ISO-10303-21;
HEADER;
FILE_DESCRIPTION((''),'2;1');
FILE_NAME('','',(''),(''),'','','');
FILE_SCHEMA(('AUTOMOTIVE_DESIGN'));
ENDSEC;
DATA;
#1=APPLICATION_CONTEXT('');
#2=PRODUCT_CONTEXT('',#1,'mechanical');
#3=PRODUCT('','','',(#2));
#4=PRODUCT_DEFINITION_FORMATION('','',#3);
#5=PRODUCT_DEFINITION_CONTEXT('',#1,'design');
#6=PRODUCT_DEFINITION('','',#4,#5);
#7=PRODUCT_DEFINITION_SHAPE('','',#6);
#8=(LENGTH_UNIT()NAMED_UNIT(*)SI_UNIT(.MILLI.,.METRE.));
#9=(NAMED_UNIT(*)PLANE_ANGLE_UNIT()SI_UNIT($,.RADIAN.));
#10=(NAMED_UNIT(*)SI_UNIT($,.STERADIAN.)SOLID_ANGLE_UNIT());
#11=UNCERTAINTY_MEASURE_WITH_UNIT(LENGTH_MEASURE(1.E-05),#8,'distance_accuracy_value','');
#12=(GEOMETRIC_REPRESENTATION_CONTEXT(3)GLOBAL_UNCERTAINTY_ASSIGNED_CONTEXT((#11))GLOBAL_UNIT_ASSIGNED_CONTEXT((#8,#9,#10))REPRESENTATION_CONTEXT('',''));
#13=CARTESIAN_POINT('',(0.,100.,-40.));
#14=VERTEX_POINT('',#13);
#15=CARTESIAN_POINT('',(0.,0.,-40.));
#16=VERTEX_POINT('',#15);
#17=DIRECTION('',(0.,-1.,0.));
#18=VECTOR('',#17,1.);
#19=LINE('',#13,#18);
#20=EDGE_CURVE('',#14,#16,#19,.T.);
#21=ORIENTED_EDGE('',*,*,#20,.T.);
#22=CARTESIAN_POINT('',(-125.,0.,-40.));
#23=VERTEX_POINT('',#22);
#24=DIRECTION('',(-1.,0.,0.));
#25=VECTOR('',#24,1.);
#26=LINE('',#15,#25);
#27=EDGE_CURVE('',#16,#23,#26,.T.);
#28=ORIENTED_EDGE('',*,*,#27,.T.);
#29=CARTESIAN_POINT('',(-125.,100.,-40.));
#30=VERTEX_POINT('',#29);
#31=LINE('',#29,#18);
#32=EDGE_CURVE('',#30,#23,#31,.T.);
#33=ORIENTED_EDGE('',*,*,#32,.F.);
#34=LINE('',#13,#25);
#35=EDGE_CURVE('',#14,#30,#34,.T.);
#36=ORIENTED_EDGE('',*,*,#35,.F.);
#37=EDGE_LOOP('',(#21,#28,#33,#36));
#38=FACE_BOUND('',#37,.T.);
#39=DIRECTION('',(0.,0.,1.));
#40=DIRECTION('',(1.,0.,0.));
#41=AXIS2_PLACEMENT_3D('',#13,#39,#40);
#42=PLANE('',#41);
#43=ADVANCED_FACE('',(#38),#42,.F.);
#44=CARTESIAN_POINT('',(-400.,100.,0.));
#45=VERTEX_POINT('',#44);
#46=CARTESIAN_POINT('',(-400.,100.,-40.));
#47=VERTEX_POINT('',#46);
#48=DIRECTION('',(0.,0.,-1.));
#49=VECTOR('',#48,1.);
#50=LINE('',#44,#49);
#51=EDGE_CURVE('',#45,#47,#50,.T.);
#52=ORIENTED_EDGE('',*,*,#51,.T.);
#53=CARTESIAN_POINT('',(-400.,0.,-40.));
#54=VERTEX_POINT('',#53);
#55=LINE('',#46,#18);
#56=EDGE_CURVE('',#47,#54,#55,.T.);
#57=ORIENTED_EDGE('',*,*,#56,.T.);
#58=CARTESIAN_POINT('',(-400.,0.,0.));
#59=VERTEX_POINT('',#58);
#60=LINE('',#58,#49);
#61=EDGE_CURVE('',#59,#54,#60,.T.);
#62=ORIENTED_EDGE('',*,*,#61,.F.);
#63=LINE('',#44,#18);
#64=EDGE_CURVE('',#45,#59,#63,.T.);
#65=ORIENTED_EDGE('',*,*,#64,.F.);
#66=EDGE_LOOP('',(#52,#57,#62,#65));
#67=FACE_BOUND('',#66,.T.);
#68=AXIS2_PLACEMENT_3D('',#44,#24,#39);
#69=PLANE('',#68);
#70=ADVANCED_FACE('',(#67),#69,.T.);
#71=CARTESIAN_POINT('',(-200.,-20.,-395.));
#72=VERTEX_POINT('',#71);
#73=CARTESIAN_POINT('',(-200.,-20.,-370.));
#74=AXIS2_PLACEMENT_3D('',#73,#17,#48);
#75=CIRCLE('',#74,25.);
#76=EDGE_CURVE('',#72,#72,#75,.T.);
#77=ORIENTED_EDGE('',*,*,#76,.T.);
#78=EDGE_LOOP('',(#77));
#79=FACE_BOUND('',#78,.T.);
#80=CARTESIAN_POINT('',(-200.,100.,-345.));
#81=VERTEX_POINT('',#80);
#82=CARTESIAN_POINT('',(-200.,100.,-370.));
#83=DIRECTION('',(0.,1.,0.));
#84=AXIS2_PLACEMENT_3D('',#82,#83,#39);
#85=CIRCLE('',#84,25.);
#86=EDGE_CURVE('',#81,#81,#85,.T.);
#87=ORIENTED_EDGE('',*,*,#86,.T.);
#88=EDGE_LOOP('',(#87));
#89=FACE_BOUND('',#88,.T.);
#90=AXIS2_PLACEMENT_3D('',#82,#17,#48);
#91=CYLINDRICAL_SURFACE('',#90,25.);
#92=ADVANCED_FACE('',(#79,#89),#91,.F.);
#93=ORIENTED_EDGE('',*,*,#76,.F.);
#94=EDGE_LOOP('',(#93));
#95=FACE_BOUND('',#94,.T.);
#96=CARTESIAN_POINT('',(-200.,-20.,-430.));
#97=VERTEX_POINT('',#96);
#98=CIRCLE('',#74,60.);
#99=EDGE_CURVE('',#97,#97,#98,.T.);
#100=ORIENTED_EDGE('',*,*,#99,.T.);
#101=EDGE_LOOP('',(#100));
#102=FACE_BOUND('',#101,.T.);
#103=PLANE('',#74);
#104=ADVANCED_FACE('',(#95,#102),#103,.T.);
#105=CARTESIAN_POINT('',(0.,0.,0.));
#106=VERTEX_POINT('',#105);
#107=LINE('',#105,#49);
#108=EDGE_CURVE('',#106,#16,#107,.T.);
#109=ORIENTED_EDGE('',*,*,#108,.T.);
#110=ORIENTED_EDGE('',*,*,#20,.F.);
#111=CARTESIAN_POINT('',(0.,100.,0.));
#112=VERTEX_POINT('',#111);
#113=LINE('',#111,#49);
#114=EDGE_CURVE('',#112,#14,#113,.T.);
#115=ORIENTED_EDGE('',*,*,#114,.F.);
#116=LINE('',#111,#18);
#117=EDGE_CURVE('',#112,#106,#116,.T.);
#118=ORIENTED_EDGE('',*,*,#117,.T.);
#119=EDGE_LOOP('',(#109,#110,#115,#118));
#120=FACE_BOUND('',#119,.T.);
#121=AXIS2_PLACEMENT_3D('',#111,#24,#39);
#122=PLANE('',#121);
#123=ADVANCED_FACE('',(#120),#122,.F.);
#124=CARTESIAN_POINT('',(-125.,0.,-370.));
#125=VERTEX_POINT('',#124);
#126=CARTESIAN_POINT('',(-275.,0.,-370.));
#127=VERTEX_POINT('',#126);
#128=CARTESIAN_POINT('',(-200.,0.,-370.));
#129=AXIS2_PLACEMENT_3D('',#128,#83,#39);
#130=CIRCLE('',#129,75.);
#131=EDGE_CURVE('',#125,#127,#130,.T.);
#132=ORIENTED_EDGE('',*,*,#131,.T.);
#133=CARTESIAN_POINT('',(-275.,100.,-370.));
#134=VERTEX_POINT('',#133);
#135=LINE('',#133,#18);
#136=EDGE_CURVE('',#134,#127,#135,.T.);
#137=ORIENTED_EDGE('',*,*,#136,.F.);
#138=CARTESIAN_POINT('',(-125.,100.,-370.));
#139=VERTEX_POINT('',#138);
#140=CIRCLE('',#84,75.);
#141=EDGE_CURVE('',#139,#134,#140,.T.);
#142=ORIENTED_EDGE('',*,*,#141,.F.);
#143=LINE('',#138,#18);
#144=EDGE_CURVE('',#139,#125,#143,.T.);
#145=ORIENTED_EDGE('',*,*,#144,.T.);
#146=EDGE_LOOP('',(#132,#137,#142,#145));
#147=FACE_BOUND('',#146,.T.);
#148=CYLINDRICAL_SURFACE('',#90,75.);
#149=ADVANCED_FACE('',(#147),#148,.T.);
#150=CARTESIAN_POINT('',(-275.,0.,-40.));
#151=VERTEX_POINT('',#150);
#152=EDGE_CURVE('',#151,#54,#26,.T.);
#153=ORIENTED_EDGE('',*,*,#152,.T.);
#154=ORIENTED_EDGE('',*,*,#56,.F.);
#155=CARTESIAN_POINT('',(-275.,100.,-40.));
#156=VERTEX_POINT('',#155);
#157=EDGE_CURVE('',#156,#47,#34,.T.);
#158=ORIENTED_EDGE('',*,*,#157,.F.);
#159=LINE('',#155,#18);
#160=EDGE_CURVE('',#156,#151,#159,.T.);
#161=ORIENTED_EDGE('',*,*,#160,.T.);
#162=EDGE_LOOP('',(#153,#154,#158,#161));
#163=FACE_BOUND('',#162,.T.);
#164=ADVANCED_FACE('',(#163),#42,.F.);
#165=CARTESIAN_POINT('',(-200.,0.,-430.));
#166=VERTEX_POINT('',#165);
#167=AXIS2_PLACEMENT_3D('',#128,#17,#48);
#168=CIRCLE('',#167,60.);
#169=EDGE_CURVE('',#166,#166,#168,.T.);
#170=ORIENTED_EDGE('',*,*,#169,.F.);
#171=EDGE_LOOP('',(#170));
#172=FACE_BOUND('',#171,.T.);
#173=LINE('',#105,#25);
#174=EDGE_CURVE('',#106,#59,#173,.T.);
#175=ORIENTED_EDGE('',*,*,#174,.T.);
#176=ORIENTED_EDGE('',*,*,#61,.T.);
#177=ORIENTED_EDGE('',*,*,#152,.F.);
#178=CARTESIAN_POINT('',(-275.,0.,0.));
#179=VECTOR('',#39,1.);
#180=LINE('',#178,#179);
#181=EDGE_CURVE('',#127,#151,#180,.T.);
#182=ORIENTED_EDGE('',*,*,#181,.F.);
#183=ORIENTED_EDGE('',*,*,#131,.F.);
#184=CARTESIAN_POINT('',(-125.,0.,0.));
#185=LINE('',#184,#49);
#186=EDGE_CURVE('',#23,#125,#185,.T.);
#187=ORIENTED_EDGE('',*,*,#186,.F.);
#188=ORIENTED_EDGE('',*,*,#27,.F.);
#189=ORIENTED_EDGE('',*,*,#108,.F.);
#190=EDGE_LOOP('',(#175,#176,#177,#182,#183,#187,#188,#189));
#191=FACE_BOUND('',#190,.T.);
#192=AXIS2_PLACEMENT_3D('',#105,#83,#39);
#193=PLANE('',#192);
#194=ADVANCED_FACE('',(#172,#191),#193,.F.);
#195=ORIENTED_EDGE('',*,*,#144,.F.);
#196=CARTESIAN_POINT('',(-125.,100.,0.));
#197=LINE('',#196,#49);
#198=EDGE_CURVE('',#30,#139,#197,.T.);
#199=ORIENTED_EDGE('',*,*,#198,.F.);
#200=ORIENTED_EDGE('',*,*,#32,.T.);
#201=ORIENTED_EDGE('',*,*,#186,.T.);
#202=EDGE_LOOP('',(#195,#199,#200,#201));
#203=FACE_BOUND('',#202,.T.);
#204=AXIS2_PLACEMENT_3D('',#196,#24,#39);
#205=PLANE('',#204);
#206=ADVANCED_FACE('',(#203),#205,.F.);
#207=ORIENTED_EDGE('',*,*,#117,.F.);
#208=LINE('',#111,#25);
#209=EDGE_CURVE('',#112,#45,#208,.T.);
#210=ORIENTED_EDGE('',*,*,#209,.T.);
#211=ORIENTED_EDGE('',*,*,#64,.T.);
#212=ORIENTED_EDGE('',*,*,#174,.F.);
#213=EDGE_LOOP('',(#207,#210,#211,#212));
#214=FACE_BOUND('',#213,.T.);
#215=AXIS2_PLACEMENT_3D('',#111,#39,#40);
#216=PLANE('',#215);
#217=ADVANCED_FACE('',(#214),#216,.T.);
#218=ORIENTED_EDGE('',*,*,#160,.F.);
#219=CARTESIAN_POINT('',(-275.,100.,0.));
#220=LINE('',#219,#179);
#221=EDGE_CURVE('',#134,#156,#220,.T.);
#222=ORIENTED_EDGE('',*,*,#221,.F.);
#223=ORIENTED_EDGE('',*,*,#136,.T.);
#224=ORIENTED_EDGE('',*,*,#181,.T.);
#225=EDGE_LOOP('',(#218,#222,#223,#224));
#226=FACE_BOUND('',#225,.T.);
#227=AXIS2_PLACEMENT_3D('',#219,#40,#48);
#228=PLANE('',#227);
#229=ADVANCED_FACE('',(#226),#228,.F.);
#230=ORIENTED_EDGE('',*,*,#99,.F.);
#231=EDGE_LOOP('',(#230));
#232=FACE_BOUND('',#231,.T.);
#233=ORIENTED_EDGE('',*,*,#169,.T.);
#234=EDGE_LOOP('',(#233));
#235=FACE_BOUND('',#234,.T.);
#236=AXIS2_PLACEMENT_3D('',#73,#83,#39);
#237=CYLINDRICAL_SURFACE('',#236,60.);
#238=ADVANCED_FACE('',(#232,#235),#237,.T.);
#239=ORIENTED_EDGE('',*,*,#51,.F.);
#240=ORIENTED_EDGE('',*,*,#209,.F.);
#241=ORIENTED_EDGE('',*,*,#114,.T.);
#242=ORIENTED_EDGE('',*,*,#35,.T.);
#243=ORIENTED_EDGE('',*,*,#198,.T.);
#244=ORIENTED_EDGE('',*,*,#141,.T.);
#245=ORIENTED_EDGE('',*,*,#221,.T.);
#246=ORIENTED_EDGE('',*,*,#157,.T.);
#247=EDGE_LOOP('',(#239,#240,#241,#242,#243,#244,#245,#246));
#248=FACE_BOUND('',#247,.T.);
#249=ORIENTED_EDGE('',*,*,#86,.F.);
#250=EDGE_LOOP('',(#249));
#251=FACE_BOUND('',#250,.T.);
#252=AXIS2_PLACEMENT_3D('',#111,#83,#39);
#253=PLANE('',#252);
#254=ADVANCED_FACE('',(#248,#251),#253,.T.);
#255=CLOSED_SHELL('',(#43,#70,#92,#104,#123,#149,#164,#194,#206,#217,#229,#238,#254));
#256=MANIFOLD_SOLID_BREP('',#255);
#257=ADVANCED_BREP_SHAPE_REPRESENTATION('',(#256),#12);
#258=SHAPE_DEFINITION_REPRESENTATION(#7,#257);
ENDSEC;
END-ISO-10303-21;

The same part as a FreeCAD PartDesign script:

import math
import FreeCAD as App
import Part
import Sketcher

V = App.Vector

doc = App.newDocument("Part")
body = doc.addObject("PartDesign::Body", "Body")

# Sketch on XZ plane
sketch1 = doc.addObject("Sketcher::SketchObject", "Sketch")
body.addObject(sketch1)
sketch1.AttachmentSupport = (doc.XZ_Plane, [""])
sketch1.MapMode = "FlatFace"
sketch1.addGeometry(Part.ArcOfCircle(Part.Circle(V(-200, -370, 0), V(0, 0, 1), 75), math.radians(180), math.radians(360)), False)
sketch1.addGeometry(Part.LineSegment(V(-275, -370, 0), V(-275, -40, 0)), False)
sketch1.addGeometry(Part.LineSegment(V(-275, -40, 0), V(-400, -40, 0)), False)
sketch1.addGeometry(Part.LineSegment(V(-400, -40, 0), V(-400, 0, 0)), False)
sketch1.addGeometry(Part.LineSegment(V(-400, 0, 0), V(0, 0, 0)), False)
sketch1.addGeometry(Part.LineSegment(V(0, 0, 0), V(0, -40, 0)), False)
sketch1.addGeometry(Part.LineSegment(V(0, -40, 0), V(-125, -40, 0)), False)
sketch1.addGeometry(Part.LineSegment(V(-125, -40, 0), V(-125, -370, 0)), False)
sketch1.addGeometry(Part.Circle(V(-200, -370, 0), V(0, 0, 1), 25), False)
sketch1.addConstraint(Sketcher.Constraint("Tangent", 0, 1, 1, 1))
sketch1.addConstraint(Sketcher.Constraint("Coincident", 1, 2, 2, 1))
sketch1.addConstraint(Sketcher.Constraint("Coincident", 2, 2, 3, 1))
sketch1.addConstraint(Sketcher.Constraint("Coincident", 3, 2, 4, 1))
sketch1.addConstraint(Sketcher.Constraint("Coincident", 4, 2, 5, 1))
sketch1.addConstraint(Sketcher.Constraint("Coincident", 5, 2, 6, 1))
sketch1.addConstraint(Sketcher.Constraint("Coincident", 6, 2, 7, 1))
sketch1.addConstraint(Sketcher.Constraint("Tangent", 7, 2, 0, 2))
sketch1.addConstraint(Sketcher.Constraint("Vertical", 1))
sketch1.addConstraint(Sketcher.Constraint("Horizontal", 2))
sketch1.addConstraint(Sketcher.Constraint("Vertical", 3))
sketch1.addConstraint(Sketcher.Constraint("Horizontal", 4))
sketch1.addConstraint(Sketcher.Constraint("Vertical", 5))
sketch1.addConstraint(Sketcher.Constraint("Horizontal", 6))
sketch1.addConstraint(Sketcher.Constraint("Vertical", 7))
sketch1.addConstraint(Sketcher.Constraint("Coincident", 4, 2, -1, 1))
sketch1.addConstraint(Sketcher.Constraint("Coincident", 8, 3, 0, 3))
sketch1.addConstraint(Sketcher.Constraint("Horizontal", 2, 2, 5, 2))
sketch1.addConstraint(Sketcher.Constraint("Equal", 2, 6))
sketch1.addConstraint(Sketcher.Constraint("Diameter", 8, 50.0))
sketch1.addConstraint(Sketcher.Constraint("Radius", 0, 75.0))
sketch1.addConstraint(Sketcher.Constraint("DistanceX", 2, 2, 2, 1, 125.0))
sketch1.addConstraint(Sketcher.Constraint("DistanceY", 1, 1, 1, 2, 330.0))
sketch1.addConstraint(Sketcher.Constraint("DistanceY", 3, 1, 3, 2, 40.0))
pad1 = doc.addObject("PartDesign::Pad", "Pad")
body.addObject(pad1)
pad1.Profile = sketch1
pad1.Length = 100
pad1.Reversed = True

# Sketch on XZ plane
sketch2 = doc.addObject("Sketcher::SketchObject", "Sketch001")
body.addObject(sketch2)
sketch2.AttachmentSupport = (doc.XZ_Plane, [""])
sketch2.MapMode = "FlatFace"
sketch2.AttachmentOffset = App.Placement(V(0, 0, 20), App.Rotation())
sketch2.addGeometry(Part.Circle(V(-200, -370, 0), V(0, 0, 1), 60), False)
sketch2.addGeometry(Part.Circle(V(-200, -370, 0), V(0, 0, 1), 25), False)
sketch2.addConstraint(Sketcher.Constraint("Coincident", 1, 3, 0, 3))
sketch2.addConstraint(Sketcher.Constraint("Diameter", 0, 120.0))
sketch2.addConstraint(Sketcher.Constraint("Diameter", 1, 50.0))
sketch2.addConstraint(Sketcher.Constraint("DistanceX", 0, 3, -1, 1, 200.0))
sketch2.addConstraint(Sketcher.Constraint("DistanceY", 0, 3, -1, 1, 370.0))
pad2 = doc.addObject("PartDesign::Pad", "Pad001")
body.addObject(pad2)
pad2.Profile = sketch2
pad2.Length = 20
pad2.Reversed = True

doc.recompute()
